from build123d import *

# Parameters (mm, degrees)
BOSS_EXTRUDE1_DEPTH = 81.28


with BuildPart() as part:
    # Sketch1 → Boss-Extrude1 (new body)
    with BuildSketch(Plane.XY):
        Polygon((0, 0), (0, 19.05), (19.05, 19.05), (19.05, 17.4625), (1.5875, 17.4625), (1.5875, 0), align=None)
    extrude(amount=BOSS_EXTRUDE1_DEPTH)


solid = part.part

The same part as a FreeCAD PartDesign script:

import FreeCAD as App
import Part
import Sketcher

V = App.Vector
Q = App.Units.Quantity

doc = App.newDocument("Part")
params = doc.addObject("Spreadsheet::Sheet", "Params")
for row, (alias, value) in enumerate([
    ("sketch1_width", "0.75 in"),
    ("sketch1_width2", "0.0625 in"),
    ("pad1_length", "3.2 in"),
], start=1):
    params.set(f"A{row}", alias)
    params.set(f"B{row}", "=" + value)
    params.setAlias(f"B{row}", alias)

body = doc.addObject("PartDesign::Body", "Body")

sketch1 = body.newObject("Sketcher::SketchObject", "Sketch")
sketch1.AttachmentSupport = (doc.getObject("XY_Plane"), [""])
sketch1.MapMode = "FlatFace"
sketch1.addGeometry(Part.LineSegment(V(0, 19.1, 0), V(0, 0, 0)), False)
sketch1.addGeometry(Part.LineSegment(V(0, 0, 0), V(1.6, 0, 0)), False)
sketch1.addGeometry(Part.LineSegment(V(1.6, 0, 0), V(1.6, 17.5, 0)), False)
sketch1.addGeometry(Part.LineSegment(V(1.6, 17.5, 0), V(19.1, 17.5, 0)), False)
sketch1.addGeometry(Part.LineSegment(V(19.1, 17.5, 0), V(19.1, 19.1, 0)), False)
sketch1.addGeometry(Part.LineSegment(V(19.1, 19.1, 0), V(0, 19.1, 0)), False)
sketch1.addConstraint(Sketcher.Constraint("Coincident", 0, 2, 1, 1))
sketch1.addConstraint(Sketcher.Constraint("Coincident", 1, 2, 2, 1))
sketch1.addConstraint(Sketcher.Constraint("Coincident", 2, 2, 3, 1))
sketch1.addConstraint(Sketcher.Constraint("Coincident", 3, 2, 4, 1))
sketch1.addConstraint(Sketcher.Constraint("Coincident", 4, 2, 5, 1))
sketch1.addConstraint(Sketcher.Constraint("Coincident", 5, 2, 0, 1))
sketch1.addConstraint(Sketcher.Constraint("Vertical", 0))
sketch1.addConstraint(Sketcher.Constraint("Horizontal", 1))
sketch1.addConstraint(Sketcher.Constraint("Vertical", 2))
sketch1.addConstraint(Sketcher.Constraint("Horizontal", 3))
sketch1.addConstraint(Sketcher.Constraint("Vertical", 4))
sketch1.addConstraint(Sketcher.Constraint("Horizontal", 5))
sketch1.addConstraint(Sketcher.Constraint("Coincident", 0, 2, -1, 1))
sketch1.addConstraint(Sketcher.Constraint("Equal", 5, 0))
sketch1.addConstraint(Sketcher.Constraint("Equal", 3, 2))
sketch1.addConstraint(Sketcher.Constraint("DistanceX", 5, 2, 5, 1, Q("0.75 in")))
sketch1.addConstraint(Sketcher.Constraint("DistanceX", 1, 1, 1, 2, Q("0.0625 in")))
sketch1.setExpression("Constraints[15]", "Params.sketch1_width")
sketch1.setExpression("Constraints[16]", "Params.sketch1_width2")
pad1 = body.newObject("PartDesign::Pad", "Pad")
pad1.Profile = sketch1
pad1.setExpression("Length", "Params.pad1_length")

doc.recompute()
